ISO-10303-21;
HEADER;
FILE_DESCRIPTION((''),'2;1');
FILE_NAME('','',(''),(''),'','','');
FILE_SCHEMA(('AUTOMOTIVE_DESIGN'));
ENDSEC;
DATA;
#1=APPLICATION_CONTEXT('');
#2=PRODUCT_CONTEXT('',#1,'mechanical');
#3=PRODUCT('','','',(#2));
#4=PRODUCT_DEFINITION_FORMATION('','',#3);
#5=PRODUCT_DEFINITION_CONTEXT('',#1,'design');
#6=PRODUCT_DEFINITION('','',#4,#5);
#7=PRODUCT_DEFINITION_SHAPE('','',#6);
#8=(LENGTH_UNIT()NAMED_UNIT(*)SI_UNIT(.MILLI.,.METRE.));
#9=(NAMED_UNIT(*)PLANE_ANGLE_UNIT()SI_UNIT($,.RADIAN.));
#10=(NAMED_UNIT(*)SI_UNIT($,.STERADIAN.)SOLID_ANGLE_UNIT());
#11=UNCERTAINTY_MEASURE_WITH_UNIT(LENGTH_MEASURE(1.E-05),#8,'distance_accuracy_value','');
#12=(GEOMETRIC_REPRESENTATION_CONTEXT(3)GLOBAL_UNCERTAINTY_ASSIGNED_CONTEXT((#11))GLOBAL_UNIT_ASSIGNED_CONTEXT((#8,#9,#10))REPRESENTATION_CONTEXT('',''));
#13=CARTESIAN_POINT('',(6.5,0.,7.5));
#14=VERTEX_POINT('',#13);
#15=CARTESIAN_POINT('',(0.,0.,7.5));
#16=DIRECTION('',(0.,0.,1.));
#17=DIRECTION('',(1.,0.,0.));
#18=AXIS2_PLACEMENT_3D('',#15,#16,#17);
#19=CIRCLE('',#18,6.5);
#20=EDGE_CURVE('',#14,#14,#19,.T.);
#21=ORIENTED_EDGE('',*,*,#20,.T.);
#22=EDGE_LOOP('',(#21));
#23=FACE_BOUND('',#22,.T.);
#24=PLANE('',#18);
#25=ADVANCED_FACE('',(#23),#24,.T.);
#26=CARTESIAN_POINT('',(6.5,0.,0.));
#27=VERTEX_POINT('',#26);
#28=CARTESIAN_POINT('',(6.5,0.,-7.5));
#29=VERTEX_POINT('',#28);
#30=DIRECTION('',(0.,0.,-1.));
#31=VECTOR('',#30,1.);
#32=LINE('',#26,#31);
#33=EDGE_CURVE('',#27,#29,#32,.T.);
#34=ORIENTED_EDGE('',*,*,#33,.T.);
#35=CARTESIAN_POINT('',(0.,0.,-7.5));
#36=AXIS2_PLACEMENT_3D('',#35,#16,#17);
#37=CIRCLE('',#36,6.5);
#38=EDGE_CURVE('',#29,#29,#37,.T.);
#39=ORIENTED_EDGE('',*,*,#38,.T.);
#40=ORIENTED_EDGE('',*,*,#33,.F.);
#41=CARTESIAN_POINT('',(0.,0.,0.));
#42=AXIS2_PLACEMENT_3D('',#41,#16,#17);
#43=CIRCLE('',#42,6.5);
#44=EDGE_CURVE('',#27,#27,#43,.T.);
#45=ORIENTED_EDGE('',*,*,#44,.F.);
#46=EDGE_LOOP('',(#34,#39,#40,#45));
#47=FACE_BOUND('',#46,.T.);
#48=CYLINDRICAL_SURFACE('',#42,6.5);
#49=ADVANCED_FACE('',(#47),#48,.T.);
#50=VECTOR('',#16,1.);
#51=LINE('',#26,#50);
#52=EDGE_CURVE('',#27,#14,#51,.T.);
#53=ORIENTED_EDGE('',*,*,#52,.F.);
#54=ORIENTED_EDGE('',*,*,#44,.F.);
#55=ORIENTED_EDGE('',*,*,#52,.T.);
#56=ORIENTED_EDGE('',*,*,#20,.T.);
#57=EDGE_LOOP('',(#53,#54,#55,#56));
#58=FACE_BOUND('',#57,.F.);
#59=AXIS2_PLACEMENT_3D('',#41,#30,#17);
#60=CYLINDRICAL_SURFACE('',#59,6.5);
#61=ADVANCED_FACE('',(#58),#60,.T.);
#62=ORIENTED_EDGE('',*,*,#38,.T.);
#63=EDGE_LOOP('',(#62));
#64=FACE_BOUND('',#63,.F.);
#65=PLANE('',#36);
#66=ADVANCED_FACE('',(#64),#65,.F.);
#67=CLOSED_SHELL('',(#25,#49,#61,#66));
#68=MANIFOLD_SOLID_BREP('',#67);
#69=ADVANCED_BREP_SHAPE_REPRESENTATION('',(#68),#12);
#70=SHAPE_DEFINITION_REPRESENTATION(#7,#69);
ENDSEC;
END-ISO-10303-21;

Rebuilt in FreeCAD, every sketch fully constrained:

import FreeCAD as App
import Part
import Sketcher

V = App.Vector

doc = App.newDocument("Part")
params = doc.addObject("Spreadsheet::Sheet", "Params")
for row, (alias, value) in enumerate([
    ("sketch1_diameter", "13 mm"),
    ("pad1_length", "15 mm"),
], start=1):
    params.set(f"A{row}", alias)
    params.set(f"B{row}", "=" + value)
    params.setAlias(f"B{row}", alias)

body = doc.addObject("PartDesign::Body", "Body")

# Sketch on XY plane
sketch1 = body.newObject("Sketcher::SketchObject", "Sketch")
sketch1.AttachmentSupport = (doc.getObject("XY_Plane"), [""])
sketch1.MapMode = "FlatFace"
sketch1.addGeometry(Part.Circle(V(0, 0, 0), V(0, 0, 1), 6.5), False)
sketch1.addConstraint(Sketcher.Constraint("Coincident", 0, 3, -1, 1))
sketch1.addConstraint(Sketcher.Constraint("Diameter", 0, 13.0))
sketch1.setExpression("Constraints[1]", "Params.sketch1_diameter")
pad1 = body.newObject("PartDesign::Pad", "Pad")
pad1.Profile = sketch1
pad1.setExpression("Length", "Params.pad1_length")
pad1.Midplane = True

doc.recompute()
